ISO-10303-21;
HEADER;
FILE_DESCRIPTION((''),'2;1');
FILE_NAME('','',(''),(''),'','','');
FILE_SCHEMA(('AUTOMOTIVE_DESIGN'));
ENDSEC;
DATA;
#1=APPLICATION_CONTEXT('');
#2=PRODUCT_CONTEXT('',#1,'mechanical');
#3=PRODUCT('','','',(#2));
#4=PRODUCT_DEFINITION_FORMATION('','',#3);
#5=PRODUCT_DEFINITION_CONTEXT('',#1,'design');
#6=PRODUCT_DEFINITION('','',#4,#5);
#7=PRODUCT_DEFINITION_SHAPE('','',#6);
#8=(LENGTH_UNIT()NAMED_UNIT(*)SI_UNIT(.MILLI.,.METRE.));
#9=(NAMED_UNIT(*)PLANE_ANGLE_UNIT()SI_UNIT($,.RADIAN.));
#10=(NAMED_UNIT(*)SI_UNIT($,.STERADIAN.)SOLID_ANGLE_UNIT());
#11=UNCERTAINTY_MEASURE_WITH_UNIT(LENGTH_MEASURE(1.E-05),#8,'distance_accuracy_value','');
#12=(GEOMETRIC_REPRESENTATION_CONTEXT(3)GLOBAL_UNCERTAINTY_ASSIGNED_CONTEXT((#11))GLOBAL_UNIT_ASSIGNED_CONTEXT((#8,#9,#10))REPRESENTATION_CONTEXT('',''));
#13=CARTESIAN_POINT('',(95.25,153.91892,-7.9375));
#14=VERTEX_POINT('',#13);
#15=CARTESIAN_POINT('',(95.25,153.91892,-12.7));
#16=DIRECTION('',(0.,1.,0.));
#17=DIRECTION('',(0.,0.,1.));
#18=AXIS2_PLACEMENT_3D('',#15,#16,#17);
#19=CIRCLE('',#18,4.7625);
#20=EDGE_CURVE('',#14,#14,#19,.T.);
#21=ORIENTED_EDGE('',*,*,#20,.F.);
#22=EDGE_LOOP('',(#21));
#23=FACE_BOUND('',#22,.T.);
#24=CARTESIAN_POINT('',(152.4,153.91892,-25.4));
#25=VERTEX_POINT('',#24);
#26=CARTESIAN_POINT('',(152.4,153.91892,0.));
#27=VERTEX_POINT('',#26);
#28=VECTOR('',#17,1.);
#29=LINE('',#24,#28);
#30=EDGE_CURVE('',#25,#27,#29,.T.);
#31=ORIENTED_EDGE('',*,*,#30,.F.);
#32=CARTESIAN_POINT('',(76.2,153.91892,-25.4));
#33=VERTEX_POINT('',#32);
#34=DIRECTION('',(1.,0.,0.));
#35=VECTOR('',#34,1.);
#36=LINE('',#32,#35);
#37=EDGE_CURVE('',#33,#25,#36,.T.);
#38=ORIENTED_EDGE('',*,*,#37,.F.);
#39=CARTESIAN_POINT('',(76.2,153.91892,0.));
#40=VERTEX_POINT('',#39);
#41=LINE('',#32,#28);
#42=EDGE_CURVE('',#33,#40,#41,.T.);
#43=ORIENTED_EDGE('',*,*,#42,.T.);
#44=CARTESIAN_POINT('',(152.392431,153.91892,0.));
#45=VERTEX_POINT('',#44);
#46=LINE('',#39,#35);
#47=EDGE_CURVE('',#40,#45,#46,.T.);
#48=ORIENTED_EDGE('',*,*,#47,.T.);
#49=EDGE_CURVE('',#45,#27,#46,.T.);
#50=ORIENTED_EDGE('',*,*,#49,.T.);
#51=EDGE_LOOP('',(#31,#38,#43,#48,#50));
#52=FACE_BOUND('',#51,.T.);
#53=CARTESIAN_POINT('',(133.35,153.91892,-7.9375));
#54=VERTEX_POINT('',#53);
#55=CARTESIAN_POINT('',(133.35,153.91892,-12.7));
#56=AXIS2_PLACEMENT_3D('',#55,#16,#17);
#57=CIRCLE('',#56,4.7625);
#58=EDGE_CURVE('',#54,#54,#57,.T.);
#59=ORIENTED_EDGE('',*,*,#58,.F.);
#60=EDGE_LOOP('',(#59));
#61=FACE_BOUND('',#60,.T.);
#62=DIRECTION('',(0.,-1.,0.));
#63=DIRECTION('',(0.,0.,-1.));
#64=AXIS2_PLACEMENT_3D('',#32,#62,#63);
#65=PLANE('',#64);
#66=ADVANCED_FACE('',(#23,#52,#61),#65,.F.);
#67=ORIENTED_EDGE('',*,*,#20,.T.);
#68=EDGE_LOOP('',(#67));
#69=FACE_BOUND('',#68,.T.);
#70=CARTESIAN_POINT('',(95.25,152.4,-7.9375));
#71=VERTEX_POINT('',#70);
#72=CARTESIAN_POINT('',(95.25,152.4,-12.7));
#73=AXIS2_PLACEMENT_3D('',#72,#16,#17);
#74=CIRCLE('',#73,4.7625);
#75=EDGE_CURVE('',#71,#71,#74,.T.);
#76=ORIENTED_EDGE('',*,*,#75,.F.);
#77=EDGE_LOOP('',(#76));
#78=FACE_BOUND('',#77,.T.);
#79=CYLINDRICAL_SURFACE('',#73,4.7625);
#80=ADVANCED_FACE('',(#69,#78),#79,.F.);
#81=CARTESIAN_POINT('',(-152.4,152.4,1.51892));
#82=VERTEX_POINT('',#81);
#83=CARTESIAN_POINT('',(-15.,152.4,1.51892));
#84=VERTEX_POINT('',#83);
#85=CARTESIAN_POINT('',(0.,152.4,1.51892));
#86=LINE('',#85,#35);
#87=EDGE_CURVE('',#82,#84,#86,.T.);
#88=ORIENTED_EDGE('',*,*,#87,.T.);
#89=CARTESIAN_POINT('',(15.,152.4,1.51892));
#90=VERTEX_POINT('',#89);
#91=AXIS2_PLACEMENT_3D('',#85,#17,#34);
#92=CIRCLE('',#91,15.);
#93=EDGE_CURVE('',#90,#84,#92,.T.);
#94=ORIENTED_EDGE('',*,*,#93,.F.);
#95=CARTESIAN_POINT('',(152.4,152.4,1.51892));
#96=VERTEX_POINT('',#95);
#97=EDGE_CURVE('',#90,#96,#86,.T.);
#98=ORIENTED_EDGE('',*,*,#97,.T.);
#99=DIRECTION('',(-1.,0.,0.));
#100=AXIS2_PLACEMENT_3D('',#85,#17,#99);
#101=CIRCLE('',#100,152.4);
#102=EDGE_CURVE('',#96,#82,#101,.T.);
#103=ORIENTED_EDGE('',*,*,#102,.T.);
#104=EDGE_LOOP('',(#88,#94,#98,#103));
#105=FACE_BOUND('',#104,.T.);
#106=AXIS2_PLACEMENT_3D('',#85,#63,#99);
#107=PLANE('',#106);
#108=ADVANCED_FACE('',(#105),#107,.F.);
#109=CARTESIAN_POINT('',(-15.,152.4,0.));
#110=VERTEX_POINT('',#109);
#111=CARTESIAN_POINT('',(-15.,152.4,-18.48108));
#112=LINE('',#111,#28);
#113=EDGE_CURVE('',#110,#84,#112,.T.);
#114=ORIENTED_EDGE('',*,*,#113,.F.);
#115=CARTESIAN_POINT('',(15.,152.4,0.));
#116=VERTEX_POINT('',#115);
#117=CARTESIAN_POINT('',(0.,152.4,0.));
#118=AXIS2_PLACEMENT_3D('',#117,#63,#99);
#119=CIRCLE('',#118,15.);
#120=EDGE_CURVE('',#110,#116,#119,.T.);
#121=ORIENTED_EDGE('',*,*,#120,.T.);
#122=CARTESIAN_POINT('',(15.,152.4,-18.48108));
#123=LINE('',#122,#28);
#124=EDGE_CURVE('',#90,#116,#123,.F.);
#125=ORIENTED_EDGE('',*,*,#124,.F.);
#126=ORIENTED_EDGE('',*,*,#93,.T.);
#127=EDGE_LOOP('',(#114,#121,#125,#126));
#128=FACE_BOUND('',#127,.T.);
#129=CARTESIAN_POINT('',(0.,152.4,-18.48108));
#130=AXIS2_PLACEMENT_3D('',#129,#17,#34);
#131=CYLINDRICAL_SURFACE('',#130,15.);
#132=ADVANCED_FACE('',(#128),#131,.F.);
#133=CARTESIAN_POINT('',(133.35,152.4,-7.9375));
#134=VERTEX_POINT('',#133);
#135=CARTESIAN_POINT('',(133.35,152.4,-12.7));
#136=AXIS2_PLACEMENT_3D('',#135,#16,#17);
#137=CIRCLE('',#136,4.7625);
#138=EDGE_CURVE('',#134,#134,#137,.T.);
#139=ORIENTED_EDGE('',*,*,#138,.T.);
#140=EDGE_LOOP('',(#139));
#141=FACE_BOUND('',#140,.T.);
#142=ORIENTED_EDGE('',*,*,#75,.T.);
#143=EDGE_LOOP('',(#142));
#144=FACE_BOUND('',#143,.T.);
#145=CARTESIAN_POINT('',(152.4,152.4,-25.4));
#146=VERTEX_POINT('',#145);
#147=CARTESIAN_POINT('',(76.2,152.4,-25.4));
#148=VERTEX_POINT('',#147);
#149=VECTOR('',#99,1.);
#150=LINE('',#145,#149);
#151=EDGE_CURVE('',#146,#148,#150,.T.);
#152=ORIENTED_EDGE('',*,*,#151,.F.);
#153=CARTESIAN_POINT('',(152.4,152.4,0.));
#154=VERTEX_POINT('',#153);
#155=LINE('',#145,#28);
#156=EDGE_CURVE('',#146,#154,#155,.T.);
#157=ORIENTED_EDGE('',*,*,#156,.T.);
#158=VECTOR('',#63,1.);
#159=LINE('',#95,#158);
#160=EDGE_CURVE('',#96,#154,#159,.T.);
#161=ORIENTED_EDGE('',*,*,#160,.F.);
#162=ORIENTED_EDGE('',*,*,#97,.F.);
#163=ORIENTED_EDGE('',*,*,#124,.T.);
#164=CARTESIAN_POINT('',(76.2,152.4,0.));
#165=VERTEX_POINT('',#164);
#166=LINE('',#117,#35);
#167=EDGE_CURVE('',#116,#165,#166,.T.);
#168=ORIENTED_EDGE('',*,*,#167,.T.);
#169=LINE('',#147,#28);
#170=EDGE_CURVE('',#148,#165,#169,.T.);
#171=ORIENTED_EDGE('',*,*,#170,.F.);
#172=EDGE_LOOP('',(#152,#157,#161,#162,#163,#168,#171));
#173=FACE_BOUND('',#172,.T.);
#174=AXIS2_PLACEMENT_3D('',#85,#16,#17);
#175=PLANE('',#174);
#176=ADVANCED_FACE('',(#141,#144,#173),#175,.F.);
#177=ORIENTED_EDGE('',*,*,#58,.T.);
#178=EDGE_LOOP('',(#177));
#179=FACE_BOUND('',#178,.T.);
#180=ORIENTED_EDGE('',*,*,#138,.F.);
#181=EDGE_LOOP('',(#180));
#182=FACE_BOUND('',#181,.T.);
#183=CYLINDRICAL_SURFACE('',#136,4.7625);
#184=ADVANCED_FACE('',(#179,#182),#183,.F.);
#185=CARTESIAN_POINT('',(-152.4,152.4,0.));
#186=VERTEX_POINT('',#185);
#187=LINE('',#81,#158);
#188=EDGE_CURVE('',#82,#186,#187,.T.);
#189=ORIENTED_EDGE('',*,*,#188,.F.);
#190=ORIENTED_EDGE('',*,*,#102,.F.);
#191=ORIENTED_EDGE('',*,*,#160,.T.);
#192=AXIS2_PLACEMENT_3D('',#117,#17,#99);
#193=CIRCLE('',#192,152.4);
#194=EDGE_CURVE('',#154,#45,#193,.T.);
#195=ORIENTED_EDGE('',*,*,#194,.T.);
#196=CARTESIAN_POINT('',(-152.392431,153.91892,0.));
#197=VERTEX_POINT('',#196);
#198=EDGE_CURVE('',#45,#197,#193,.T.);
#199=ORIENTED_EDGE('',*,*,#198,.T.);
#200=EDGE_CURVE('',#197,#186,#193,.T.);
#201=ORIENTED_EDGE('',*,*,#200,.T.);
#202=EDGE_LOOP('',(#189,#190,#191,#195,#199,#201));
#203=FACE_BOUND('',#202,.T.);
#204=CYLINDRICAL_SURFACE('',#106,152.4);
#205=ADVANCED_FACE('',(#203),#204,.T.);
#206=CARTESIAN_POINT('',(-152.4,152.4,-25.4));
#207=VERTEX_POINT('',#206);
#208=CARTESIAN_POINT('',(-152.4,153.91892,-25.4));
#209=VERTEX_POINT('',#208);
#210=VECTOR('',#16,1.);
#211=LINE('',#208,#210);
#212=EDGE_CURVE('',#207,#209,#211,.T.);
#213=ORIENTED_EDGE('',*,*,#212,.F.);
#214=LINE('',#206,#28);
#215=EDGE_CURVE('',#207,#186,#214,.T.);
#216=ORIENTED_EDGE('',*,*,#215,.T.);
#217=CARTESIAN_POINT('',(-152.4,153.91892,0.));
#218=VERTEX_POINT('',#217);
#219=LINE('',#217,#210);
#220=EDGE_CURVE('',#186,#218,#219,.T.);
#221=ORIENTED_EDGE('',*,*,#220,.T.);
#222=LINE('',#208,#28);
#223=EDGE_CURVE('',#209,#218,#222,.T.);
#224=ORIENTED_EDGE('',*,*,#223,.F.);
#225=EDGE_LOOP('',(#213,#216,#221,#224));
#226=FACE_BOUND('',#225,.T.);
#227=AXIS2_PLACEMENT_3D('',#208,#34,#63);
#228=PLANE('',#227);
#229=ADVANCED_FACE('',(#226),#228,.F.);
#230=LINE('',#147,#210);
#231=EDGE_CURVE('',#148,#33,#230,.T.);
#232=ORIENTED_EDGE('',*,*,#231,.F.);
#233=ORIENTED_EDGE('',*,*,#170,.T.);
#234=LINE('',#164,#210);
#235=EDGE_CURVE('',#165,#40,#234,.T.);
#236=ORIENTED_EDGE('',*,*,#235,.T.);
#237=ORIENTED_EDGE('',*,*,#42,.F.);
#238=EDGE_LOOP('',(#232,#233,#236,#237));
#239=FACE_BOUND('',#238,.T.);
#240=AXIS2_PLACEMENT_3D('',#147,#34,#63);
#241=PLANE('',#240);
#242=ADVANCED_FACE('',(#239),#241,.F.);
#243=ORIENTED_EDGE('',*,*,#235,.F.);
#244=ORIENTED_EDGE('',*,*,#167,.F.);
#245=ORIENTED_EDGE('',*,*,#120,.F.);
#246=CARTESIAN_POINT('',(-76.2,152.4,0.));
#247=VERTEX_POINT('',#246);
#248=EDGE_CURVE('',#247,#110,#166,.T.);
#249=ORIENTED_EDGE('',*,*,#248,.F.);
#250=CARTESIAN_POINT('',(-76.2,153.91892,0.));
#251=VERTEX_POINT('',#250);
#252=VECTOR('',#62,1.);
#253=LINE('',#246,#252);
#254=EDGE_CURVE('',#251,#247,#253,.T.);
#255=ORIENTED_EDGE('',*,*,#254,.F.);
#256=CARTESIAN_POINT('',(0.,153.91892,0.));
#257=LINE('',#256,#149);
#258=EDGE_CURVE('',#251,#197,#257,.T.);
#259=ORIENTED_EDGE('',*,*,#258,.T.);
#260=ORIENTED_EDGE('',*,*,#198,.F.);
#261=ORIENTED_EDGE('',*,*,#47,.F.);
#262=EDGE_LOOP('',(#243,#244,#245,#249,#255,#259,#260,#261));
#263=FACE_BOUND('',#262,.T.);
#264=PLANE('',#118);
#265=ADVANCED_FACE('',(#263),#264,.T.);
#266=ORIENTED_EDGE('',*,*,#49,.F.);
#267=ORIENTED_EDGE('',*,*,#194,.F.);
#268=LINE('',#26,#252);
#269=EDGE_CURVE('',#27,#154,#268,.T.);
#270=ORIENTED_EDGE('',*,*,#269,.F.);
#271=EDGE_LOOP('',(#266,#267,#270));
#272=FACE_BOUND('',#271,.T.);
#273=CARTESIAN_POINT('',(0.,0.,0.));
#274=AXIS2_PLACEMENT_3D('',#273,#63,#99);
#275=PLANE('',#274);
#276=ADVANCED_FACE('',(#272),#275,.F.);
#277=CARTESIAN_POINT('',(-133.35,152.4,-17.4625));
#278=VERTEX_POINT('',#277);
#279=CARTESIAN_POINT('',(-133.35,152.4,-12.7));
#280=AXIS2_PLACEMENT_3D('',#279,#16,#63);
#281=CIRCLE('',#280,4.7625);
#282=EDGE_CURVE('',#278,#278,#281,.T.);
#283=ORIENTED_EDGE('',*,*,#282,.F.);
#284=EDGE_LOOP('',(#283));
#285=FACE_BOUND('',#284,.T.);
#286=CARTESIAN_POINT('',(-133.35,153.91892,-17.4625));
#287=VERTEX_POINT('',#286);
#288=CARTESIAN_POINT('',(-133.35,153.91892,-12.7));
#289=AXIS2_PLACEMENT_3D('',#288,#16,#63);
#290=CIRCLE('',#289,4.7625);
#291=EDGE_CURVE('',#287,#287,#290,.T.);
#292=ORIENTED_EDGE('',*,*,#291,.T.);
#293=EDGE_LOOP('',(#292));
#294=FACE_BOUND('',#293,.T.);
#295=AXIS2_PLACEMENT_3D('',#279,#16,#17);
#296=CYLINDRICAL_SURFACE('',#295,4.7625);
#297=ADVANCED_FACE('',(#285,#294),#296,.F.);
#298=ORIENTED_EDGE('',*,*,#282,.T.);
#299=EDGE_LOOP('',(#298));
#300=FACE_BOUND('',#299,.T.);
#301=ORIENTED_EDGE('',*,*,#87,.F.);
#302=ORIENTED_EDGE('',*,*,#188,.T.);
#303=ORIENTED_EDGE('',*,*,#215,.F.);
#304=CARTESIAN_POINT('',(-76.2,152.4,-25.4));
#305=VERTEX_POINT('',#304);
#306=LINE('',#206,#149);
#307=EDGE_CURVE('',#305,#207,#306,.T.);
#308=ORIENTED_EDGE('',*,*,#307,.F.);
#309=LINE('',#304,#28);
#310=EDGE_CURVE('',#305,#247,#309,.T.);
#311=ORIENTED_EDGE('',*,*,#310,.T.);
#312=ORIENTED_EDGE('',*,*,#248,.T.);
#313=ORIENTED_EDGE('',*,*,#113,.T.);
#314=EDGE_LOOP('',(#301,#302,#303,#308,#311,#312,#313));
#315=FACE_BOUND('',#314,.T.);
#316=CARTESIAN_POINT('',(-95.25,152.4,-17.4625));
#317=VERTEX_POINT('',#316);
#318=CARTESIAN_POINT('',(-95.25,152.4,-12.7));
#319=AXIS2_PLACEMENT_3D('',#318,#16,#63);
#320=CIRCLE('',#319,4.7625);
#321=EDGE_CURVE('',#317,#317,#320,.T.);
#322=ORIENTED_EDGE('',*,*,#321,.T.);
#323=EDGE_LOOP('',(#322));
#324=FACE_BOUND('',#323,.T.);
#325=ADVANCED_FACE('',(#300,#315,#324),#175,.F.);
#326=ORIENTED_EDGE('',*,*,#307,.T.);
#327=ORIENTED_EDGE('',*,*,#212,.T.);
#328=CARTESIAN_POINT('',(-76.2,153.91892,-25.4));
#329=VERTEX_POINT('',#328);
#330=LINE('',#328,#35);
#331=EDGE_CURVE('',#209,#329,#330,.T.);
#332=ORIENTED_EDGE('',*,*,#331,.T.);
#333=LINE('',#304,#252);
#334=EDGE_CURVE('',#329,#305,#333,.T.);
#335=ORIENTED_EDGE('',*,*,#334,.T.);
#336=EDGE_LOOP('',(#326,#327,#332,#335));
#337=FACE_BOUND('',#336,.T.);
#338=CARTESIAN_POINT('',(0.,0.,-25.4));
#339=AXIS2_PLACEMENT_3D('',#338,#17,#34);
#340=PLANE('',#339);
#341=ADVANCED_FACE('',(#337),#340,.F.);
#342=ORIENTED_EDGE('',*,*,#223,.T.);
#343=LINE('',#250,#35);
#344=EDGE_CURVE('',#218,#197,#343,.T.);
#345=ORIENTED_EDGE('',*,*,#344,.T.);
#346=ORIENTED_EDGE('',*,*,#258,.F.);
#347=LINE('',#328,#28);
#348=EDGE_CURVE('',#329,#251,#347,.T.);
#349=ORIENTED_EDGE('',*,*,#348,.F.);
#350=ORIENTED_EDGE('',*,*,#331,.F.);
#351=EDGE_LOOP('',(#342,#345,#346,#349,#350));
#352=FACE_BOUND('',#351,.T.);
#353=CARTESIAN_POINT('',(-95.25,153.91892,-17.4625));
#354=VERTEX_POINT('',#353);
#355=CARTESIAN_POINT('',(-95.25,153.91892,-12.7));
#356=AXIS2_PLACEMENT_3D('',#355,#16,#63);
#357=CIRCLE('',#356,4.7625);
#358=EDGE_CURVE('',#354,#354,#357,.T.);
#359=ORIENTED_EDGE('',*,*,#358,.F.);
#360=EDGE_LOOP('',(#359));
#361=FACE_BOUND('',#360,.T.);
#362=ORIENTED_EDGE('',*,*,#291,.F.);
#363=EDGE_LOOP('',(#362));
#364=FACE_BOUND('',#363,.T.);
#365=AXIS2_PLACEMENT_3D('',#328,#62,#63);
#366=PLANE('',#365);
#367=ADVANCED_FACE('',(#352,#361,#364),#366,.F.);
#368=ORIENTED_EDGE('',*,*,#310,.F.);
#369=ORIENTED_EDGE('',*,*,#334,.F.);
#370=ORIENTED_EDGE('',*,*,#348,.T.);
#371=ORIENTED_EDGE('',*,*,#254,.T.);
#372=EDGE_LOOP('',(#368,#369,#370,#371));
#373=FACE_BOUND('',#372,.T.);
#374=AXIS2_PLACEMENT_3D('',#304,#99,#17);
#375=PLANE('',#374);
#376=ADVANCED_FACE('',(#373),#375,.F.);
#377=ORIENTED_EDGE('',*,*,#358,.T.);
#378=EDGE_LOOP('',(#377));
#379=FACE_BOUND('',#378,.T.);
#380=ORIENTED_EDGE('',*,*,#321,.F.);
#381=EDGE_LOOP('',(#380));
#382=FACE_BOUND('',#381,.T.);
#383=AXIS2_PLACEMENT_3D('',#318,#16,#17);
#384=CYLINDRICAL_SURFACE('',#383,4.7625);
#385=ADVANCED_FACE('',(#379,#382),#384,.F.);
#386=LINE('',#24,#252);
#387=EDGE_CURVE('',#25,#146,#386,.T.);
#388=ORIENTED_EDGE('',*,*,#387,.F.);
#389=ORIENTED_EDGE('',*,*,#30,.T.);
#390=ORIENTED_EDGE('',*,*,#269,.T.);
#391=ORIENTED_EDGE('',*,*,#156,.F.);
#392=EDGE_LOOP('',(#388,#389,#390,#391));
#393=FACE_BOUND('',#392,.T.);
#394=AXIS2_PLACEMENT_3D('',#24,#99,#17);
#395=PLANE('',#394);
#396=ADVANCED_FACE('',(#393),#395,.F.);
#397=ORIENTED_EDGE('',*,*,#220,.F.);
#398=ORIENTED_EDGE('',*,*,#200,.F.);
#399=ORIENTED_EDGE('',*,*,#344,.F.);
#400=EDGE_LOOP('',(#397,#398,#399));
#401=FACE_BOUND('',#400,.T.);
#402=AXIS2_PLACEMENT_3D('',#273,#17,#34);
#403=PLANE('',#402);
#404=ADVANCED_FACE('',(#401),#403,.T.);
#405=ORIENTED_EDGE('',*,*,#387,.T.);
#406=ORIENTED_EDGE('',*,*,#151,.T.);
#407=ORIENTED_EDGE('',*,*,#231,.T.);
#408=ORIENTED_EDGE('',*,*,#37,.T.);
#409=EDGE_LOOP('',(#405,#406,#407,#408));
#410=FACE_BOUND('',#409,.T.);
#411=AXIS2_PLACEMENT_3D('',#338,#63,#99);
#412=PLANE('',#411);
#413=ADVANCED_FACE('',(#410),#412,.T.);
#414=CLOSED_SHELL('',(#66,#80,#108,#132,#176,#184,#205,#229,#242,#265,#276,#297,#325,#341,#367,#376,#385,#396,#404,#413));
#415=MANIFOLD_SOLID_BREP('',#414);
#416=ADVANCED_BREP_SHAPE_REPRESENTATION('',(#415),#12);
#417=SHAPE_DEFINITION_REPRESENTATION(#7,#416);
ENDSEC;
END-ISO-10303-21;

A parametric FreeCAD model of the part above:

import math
import FreeCAD as App
import Part
import Sketcher

V = App.Vector
Q = App.Units.Quantity


def add_polygon(sketch, points):
    """Adds a closed chain of lines whose ends are joined by coincident constraints."""
    first, n = sketch.GeometryCount, len(points)
    for a, b in zip(points, points[1:] + points[:1]):
        sketch.addGeometry(Part.LineSegment(App.Vector(*a, 0), App.Vector(*b, 0)), False)
    for i in range(n):
        sketch.addConstraint(Sketcher.Constraint("Coincident", first + i, 2, first + (i + 1) % n, 1))

doc = App.newDocument("Part")
params = doc.addObject("Spreadsheet::Sheet", "Params")
for row, (alias, value) in enumerate([
    ("sketch1_radius", "6 in"),
    ("pad1_length", "0.0598 in"),
    ("pocket1_length", "20 mm"),
    ("sketch3_width", "3 in"),
    ("pad2_length", "1 in"),
    ("sketch4_diameter", "0.375 in"),
], start=1):
    params.set(f"A{row}", alias)
    params.set(f"B{row}", "=" + value)
    params.setAlias(f"B{row}", alias)

body = doc.addObject("PartDesign::Body", "Body")

# Sketch on XY plane
sketch1 = body.newObject("Sketcher::SketchObject", "Sketch")
sketch1.AttachmentSupport = (doc.getObject("XY_Plane"), [""])
sketch1.MapMode = "FlatFace"
sketch1.addGeometry([
    Part.ArcOfCircle(Part.Circle(V(0, 152, 0), V(0, 0, 1), 152), math.radians(0), math.radians(180)),
    Part.LineSegment(V(-152, 152, 0), V(152, 152, 0)),
], False)
sketch1.addConstraint([
    Sketcher.Constraint("Coincident", 0, 1, 1, 2),
    Sketcher.Constraint("Coincident", 1, 1, 0, 2),
    Sketcher.Constraint("Horizontal", 1),
    Sketcher.Constraint("PointOnObject", 0, 3, -2),
    Sketcher.Constraint("Radius", 0, Q("6 in")),
    Sketcher.Constraint("DistanceY", -1, 1, 0, 3, Q("6 in")),
    Sketcher.Constraint("DistanceY", -1, 1, 0, 1, Q("6 in")),
])
sketch1.setExpression("Constraints[4]", "Params.sketch1_radius")
pad1 = body.newObject("PartDesign::Pad", "Pad")
pad1.Profile = sketch1
pad1.setExpression("Length", "Params.pad1_length")

# Sketch on XY plane
sketch2 = body.newObject("Sketcher::SketchObject", "Sketch001")
sketch2.AttachmentSupport = (doc.getObject("XY_Plane"), [""])
sketch2.MapMode = "FlatFace"
sketch2.AttachmentOffset = App.Placement(V(0, 0, 0.0598 * 25.4), App.Rotation())
sketch2.addGeometry(Part.Circle(V(0, 152, 0), V(0, 0, 1), 15), False)
sketch2.addConstraint([
    Sketcher.Constraint("PointOnObject", 0, 3, -2),
    Sketcher.Constraint("DistanceY", -1, 1, 0, 3, Q("6 in")),
    Sketcher.Constraint("Diameter", 0, Q("30 mm")),
])
pocket1 = body.newObject("PartDesign::Pocket", "Pocket")
pocket1.Profile = sketch2
pocket1.setExpression("Length", "Params.pocket1_length")

# Sketch on XY plane
sketch3 = body.newObject("Sketcher::SketchObject", "Sketch002")
sketch3.AttachmentSupport = (doc.getObject("XY_Plane"), [""])
sketch3.MapMode = "FlatFace"
add_polygon(sketch3, [(152.4, 153.9), (152.4, 152.4), (76.2, 152.4), (76.2, 153.9)])  # lines 0-3
add_polygon(sketch3, [(-76.2, 153.9), (-76.2, 152.4), (-152.4, 152.4), (-152.4, 153.9)])  # lines 4-7
sketch3.addConstraint([
    Sketcher.Constraint("Vertical", 0),
    Sketcher.Constraint("Horizontal", 1),
    Sketcher.Constraint("Vertical", 2),
    Sketcher.Constraint("Horizontal", 3),
    Sketcher.Constraint("Vertical", 4),
    Sketcher.Constraint("Horizontal", 5),
    Sketcher.Constraint("Vertical", 6),
    Sketcher.Constraint("Horizontal", 7),
    Sketcher.Constraint("Symmetric", 1, 2, 4, 2, -2),
    Sketcher.Constraint("Symmetric", 3, 2, 6, 2, -2),
    Sketcher.Constraint("DistanceX", 1, 2, 1, 1, Q("3 in")),
    Sketcher.Constraint("DistanceX", -1, 1, 0, 2, Q("6 in")),
    Sketcher.Constraint("DistanceY", -1, 1, 0, 2, Q("6 in")),
    Sketcher.Constraint("DistanceY", 0, 2, 0, 1, Q("0.0598 in")),
])
sketch3.setExpression("Constraints[18]", "Params.sketch3_width")
pad2 = body.newObject("PartDesign::Pad", "Pad001")
pad2.Profile = sketch3
pad2.setExpression("Length", "Params.pad2_length")
pad2.Reversed = True

# Sketch on XZ plane
sketch4 = body.newObject("Sketcher::SketchObject", "Sketch003")
sketch4.AttachmentSupport = (doc.getObject("XZ_Plane"), [""])
sketch4.MapMode = "FlatFace"
sketch4.AttachmentOffset = App.Placement(V(0, 0, -6.0598 * 25.4), App.Rotation())
sketch4.addGeometry([
    Part.Circle(V(133.3, -12.7, 0), V(0, 0, 1), 4.8),
    Part.Circle(V(95.2, -12.7, 0), V(0, 0, 1), 4.8),
    Part.Circle(V(-133.3, -12.7, 0), V(0, 0, 1), 4.8),
    Part.Circle(V(-95.2, -12.7, 0), V(0, 0, 1), 4.8),
], False)
sketch4.addConstraint([
    Sketcher.Constraint("Equal", 0, 1),
    Sketcher.Constraint("Equal", 1, 2),
    Sketcher.Constraint("Equal", 2, 3),
    Sketcher.Constraint("Symmetric", 0, 3, 2, 3, -2),
    Sketcher.Constraint("Symmetric", 1, 3, 3, 3, -2),
    Sketcher.Constraint("Horizontal", 0, 3, 1, 3),
    Sketcher.Constraint("Diameter", 0, Q("0.375 in")),
    Sketcher.Constraint("DistanceX", 2, 3, 1, 3, Q("9 in")),
    Sketcher.Constraint("DistanceY", 0, 3, -1, 1, Q("0.5 in")),
    Sketcher.Constraint("DistanceX", 1, 3, 0, 3, Q("1.5 in")),
])
sketch4.setExpression("Constraints[6]", "Params.sketch4_diameter")
pocket2 = body.newObject("PartDesign::Pocket", "Pocket001")
pocket2.Profile = sketch4
pocket2.Type = "ThroughAll"
pocket2.Reversed = True

doc.recompute()
